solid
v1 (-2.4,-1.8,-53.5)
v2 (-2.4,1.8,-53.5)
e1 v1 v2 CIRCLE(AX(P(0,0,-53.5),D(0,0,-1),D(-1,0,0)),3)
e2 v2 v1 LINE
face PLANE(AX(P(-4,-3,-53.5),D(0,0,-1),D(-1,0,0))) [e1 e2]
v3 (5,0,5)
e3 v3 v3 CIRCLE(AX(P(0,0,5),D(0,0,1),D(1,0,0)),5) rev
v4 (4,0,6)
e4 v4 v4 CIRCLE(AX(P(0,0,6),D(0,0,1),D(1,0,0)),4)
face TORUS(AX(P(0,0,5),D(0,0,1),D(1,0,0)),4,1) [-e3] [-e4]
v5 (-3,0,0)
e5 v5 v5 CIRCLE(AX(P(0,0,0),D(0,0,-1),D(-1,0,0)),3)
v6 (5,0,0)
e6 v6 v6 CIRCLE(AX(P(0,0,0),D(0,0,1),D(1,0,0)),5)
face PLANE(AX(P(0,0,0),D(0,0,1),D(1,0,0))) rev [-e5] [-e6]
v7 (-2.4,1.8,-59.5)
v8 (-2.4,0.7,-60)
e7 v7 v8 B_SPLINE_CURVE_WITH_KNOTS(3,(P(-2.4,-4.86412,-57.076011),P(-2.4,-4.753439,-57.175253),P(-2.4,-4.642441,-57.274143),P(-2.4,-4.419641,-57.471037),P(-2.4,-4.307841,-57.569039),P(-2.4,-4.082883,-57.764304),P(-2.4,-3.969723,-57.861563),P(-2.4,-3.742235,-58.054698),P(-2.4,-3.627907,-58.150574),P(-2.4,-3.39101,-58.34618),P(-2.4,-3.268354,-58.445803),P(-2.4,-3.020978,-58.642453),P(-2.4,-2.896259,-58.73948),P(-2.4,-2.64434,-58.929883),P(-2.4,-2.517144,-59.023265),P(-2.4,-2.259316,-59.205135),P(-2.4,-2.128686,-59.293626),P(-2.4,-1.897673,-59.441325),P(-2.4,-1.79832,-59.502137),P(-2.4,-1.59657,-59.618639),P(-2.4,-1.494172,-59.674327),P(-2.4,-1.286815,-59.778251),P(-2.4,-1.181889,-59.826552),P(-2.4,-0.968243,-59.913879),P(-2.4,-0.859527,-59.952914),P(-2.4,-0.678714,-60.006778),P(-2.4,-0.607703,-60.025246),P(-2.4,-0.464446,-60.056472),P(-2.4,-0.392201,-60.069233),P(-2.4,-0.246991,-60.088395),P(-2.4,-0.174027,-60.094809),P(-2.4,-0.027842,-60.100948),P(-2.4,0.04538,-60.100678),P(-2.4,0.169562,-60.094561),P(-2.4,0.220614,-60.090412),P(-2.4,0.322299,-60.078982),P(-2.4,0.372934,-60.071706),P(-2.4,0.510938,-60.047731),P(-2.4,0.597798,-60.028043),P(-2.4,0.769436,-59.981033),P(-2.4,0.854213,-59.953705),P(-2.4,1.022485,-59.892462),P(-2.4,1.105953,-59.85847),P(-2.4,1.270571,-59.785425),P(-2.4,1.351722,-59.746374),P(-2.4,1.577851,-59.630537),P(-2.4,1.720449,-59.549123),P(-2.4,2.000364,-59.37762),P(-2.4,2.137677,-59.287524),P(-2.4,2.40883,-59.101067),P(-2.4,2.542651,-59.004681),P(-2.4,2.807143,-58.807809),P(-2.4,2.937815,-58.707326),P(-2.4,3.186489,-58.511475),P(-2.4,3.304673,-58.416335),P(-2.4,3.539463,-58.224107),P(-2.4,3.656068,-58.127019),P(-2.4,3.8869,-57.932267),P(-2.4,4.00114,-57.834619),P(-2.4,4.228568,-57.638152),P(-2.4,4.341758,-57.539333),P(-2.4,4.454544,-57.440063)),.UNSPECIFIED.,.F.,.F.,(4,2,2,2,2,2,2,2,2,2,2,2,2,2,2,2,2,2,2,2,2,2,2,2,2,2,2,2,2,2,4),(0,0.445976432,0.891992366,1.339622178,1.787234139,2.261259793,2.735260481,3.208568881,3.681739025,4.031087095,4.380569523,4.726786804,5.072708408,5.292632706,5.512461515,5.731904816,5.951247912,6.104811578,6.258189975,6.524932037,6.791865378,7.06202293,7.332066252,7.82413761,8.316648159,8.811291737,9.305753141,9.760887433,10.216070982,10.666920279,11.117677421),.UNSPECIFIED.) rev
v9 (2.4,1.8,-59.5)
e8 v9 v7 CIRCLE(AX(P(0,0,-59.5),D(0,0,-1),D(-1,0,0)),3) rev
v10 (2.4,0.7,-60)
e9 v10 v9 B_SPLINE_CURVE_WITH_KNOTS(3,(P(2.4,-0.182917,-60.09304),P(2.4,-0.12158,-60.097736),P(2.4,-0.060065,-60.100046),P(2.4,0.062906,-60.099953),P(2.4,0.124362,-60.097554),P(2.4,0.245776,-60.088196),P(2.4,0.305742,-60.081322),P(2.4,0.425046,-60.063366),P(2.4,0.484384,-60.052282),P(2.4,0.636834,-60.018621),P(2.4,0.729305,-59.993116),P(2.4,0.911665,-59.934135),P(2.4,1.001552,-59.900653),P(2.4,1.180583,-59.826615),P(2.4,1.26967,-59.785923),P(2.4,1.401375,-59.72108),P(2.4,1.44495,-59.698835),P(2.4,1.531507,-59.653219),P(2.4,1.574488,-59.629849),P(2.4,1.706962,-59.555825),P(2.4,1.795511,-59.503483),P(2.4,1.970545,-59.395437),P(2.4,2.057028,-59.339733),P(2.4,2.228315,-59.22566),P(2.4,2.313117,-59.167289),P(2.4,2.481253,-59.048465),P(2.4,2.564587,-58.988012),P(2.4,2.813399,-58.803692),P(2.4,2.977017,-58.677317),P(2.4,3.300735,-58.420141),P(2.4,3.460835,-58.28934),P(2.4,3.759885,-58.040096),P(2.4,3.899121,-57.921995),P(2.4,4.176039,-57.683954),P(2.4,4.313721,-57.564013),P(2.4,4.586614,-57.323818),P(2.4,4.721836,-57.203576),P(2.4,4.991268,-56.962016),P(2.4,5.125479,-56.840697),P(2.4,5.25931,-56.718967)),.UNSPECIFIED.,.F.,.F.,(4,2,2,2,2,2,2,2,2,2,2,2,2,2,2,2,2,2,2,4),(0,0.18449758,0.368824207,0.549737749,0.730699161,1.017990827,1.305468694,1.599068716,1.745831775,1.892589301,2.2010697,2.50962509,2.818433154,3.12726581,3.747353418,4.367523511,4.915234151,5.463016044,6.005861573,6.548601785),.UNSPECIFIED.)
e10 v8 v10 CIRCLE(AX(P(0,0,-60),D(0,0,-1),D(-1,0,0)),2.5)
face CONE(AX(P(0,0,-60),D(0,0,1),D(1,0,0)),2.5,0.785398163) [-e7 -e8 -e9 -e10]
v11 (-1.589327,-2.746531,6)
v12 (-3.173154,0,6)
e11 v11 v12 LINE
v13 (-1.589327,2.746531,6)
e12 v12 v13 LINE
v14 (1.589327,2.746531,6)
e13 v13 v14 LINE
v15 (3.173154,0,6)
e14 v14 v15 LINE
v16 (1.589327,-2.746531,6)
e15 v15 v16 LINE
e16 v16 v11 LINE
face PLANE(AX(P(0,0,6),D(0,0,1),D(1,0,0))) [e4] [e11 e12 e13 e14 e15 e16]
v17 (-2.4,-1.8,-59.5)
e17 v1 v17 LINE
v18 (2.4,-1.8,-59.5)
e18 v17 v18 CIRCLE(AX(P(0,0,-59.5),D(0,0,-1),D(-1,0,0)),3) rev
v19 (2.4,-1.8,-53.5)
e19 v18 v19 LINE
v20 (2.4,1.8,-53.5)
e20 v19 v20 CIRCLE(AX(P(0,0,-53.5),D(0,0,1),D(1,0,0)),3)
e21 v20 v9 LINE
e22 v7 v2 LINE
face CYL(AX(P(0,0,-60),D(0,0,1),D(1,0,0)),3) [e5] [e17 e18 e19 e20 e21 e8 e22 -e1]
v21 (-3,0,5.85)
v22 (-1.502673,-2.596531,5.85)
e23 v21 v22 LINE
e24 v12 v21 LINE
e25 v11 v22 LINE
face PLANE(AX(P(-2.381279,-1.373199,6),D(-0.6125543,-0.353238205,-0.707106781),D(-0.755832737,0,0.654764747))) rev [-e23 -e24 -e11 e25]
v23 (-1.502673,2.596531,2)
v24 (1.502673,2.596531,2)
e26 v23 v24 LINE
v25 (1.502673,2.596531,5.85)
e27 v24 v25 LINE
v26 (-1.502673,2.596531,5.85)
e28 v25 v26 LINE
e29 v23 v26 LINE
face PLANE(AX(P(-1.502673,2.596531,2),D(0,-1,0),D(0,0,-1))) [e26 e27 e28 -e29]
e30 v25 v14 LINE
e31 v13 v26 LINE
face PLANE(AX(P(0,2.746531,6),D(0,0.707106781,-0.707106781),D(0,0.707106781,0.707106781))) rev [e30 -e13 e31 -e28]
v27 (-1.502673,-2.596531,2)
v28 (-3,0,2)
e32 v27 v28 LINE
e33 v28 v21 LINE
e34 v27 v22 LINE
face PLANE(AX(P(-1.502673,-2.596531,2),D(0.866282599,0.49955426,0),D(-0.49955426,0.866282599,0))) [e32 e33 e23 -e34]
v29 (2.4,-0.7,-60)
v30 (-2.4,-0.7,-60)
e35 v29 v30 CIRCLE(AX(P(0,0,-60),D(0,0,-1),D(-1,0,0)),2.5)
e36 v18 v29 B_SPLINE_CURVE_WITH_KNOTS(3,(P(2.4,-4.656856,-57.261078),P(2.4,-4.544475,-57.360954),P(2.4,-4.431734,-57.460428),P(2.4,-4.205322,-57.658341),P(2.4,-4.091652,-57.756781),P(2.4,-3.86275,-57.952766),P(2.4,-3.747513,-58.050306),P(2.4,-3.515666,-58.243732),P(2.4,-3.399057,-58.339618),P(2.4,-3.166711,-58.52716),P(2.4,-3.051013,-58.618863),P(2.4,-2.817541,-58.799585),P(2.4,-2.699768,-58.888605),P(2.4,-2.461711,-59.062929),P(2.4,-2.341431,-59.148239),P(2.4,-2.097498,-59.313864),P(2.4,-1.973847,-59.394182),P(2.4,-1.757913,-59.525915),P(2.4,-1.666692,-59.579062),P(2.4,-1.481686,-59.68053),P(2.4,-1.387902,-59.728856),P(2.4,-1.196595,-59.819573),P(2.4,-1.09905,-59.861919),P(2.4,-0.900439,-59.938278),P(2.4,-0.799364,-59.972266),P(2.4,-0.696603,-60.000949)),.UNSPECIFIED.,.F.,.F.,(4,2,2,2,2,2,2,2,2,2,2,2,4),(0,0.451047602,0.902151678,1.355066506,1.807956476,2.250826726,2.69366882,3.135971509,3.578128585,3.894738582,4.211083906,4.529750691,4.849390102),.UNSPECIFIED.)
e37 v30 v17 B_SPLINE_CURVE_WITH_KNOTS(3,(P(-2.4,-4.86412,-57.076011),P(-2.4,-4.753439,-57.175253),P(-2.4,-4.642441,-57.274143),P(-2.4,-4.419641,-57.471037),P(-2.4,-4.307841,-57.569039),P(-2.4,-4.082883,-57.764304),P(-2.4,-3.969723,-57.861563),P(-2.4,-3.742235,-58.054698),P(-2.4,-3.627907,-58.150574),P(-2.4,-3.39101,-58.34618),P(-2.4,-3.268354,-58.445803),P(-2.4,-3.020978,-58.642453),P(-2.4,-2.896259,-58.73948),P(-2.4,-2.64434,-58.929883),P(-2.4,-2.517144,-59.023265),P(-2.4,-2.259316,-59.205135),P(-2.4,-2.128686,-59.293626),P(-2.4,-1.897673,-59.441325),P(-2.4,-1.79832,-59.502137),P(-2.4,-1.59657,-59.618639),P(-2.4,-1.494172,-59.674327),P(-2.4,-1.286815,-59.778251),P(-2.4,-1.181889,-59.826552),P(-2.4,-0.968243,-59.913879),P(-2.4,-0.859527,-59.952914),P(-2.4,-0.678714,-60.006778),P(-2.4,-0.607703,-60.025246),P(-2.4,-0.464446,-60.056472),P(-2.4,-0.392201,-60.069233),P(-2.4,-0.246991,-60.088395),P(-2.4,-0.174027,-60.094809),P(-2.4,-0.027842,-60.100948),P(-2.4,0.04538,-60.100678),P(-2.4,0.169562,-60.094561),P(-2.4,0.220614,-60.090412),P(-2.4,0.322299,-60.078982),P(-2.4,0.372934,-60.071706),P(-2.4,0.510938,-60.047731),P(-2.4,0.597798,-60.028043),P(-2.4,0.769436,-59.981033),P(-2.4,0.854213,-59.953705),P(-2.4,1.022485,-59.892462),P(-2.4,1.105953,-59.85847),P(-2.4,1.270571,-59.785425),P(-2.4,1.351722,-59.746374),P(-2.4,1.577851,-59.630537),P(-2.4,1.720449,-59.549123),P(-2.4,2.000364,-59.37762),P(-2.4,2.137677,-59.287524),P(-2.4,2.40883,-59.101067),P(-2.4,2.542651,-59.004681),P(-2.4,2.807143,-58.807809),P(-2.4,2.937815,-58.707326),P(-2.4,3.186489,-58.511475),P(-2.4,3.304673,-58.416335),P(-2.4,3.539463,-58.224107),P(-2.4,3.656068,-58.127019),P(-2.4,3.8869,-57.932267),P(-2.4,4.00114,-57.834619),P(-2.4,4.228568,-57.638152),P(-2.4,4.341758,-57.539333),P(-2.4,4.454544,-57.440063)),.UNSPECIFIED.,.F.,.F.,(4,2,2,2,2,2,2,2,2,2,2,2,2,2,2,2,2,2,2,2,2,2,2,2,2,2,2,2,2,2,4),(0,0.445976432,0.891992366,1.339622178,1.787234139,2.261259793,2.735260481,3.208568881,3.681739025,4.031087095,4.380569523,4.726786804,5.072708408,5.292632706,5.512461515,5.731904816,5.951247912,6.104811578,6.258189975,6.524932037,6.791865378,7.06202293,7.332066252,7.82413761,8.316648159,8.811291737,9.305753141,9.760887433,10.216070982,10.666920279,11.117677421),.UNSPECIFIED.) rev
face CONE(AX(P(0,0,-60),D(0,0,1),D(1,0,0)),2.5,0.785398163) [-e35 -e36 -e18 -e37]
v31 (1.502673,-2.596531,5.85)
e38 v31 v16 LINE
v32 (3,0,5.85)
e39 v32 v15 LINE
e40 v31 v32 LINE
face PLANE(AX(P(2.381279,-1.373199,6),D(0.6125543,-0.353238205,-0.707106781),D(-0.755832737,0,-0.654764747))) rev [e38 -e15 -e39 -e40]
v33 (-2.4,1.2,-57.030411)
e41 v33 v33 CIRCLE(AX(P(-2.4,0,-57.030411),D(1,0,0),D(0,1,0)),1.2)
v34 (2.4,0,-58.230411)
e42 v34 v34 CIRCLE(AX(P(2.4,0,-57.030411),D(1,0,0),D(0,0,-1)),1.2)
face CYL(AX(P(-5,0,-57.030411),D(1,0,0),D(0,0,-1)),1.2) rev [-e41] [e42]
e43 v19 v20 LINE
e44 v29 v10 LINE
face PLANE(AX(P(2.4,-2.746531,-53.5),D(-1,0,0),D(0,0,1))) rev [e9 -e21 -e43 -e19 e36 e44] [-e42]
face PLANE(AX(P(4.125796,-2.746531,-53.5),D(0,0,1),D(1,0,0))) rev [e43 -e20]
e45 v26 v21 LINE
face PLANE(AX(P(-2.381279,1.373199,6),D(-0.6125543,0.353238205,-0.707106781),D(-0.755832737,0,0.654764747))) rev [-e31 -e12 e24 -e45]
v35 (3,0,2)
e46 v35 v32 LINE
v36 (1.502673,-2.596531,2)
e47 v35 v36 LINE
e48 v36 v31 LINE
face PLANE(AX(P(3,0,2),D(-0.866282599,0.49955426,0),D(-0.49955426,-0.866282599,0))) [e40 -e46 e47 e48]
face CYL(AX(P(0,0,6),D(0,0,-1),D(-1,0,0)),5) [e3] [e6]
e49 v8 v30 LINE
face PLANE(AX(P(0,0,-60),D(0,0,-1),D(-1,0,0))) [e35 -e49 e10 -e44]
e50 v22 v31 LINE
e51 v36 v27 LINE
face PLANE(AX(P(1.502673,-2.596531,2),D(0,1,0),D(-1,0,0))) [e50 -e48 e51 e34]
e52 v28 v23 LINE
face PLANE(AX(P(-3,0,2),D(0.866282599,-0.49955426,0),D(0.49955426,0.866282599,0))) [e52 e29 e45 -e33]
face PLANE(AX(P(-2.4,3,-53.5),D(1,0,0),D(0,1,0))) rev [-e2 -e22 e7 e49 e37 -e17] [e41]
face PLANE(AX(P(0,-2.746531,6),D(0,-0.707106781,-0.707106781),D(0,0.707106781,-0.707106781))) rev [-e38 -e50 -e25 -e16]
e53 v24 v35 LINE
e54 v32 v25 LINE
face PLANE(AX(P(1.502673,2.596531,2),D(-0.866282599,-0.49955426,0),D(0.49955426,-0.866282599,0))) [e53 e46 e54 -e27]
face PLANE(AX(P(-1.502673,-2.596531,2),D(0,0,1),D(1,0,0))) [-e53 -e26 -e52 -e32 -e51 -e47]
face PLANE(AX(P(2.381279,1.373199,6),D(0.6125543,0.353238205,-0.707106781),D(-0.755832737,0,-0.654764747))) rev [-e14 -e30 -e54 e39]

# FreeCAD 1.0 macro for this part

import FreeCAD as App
import Part
import Sketcher
from FreeCAD import Vector


def edges_at(feature, points):
    """Names of the edges that pass closest to the given points."""
    edges = feature.Shape.Edges
    near = lambda p: min(range(len(edges)), key=lambda i: edges[i].distToShape(Part.Vertex(*p))[0])
    return sorted({f"Edge{near(p) + 1}" for p in points})

doc = App.newDocument("Part")
body = doc.addObject("PartDesign::Body", "Body")

sketch1 = body.newObject("Sketcher::SketchObject", "Sketch")
sketch1.AttachmentSupport = (doc.getObject("XY_Plane"), [""])
sketch1.MapMode = "FlatFace"
sketch1.addGeometry(Part.Circle(Vector(0, 0, 0), Vector(0, 0, 1), 5), False)
sketch1.addConstraint([
    Sketcher.Constraint("Coincident", 0, 3, -1, 1),
    Sketcher.Constraint("Diameter", 0, 10.0),
])
pad1 = body.newObject("PartDesign::Pad", "Pad")
pad1.Profile = sketch1
pad1.Length = 6

sketch2 = body.newObject("Sketcher::SketchObject", "Sketch001")
sketch2.AttachmentSupport = (doc.getObject("XY_Plane"), [""])
sketch2.MapMode = "FlatFace"
sketch2.AttachmentOffset = App.Placement(Vector(0, 0, 6), App.Rotation())
sketch2.addGeometry([
    Part.LineSegment(Vector(-1.5, 2.6, 0), Vector(-3, 0, 0)),
    Part.LineSegment(Vector(-3, 0, 0), Vector(-1.5, -2.6, 0)),
    Part.LineSegment(Vector(-1.5, -2.6, 0), Vector(1.5, -2.6, 0)),
    Part.LineSegment(Vector(1.5, -2.6, 0), Vector(3, 0, 0)),
    Part.LineSegment(Vector(3, 0, 0), Vector(1.5, 2.6, 0)),
    Part.LineSegment(Vector(1.5, 2.6, 0), Vector(-1.5, 2.6, 0)),
], False)
sketch2.addConstraint([
    Sketcher.Constraint("Coincident", 0, 2, 1, 1),
    Sketcher.Constraint("Coincident", 1, 2, 2, 1),
    Sketcher.Constraint("Coincident", 2, 2, 3, 1),
    Sketcher.Constraint("Coincident", 3, 2, 4, 1),
    Sketcher.Constraint("Coincident", 4, 2, 5, 1),
    Sketcher.Constraint("Coincident", 5, 2, 0, 1),
    Sketcher.Constraint("Horizontal", 2),
    Sketcher.Constraint("Horizontal", 5),
    Sketcher.Constraint("Symmetric", 0, 2, 3, 2, -1, 1),
    Sketcher.Constraint("Symmetric", 1, 2, 4, 2, -1, 1),
    Sketcher.Constraint("PointOnObject", 0, 2, -1),
    Sketcher.Constraint("Parallel", 0, 3),
    Sketcher.Constraint("Vertical", 2, 2, 4, 2),
    Sketcher.Constraint("DistanceX", 0, 2, -1, 1, 3.0),
    Sketcher.Constraint("DistanceX", 2, 1, 2, 2, 3.005346),
    Sketcher.Constraint("DistanceY", 1, 2, -1, 1, 2.596531),
])
pocket1 = body.newObject("PartDesign::Pocket", "Pocket")
pocket1.Profile = sketch2
pocket1.Length = 4
doc.recompute()

fillet = body.newObject("PartDesign::Fillet", "Fillet")
fillet.Base = (pocket1, edges_at(pocket1, [(-5, 0, 6)]))
fillet.Radius = 1
doc.recompute()

chamfer = body.newObject("PartDesign::Chamfer", "Chamfer")
chamfer.Base = (fillet, edges_at(fillet, [
    (-2.251, -1.298, 6),
    (0, -2.597, 6),
    (2.251, -1.298, 6),
    (2.251, 1.298, 6),
    (0, 2.597, 6),
    (-2.251, 1.298, 6),
]))
chamfer.Size = 0.15

sketch3 = body.newObject("Sketcher::SketchObject", "Sketch002")
sketch3.AttachmentSupport = (doc.getObject("XY_Plane"), [""])
sketch3.MapMode = "FlatFace"
sketch3.addGeometry(Part.Circle(Vector(0, 0, 0), Vector(0, 0, 1), 3), False)
sketch3.addConstraint([
    Sketcher.Constraint("Coincident", 0, 3, -1, 1),
    Sketcher.Constraint("Diameter", 0, 6.0),
])
pad2 = body.newObject("PartDesign::Pad", "Pad001")
pad2.Profile = sketch3
pad2.Length = 60
pad2.Reversed = True
doc.recompute()

chamfer2 = body.newObject("PartDesign::Chamfer", "Chamfer001")
chamfer2.Base = (pad2, edges_at(pad2, [(-2.4, 1.8, -60)]))
chamfer2.Size = 0.5

sketch4 = body.newObject("Sketcher::SketchObject", "Sketch003")
sketch4.AttachmentSupport = (doc.getObject("XY_Plane"), [""])
sketch4.MapMode = "FlatFace"
sketch4.AttachmentOffset = App.Placement(Vector(0, 0, -60), App.Rotation())
sketch4.addGeometry([
    Part.LineSegment(Vector(4.1, 3, 0), Vector(4.1, -2.7, 0)),
    Part.LineSegment(Vector(4.1, -2.7, 0), Vector(2.4, -2.7, 0)),
    Part.LineSegment(Vector(2.4, -2.7, 0), Vector(2.4, 3, 0)),
    Part.LineSegment(Vector(2.4, 3, 0), Vector(4.1, 3, 0)),
], False)
sketch4.addConstraint([
    Sketcher.Constraint("Coincident", 0, 2, 1, 1),
    Sketcher.Constraint("Coincident", 1, 2, 2, 1),
    Sketcher.Constraint("Coincident", 2, 2, 3, 1),
    Sketcher.Constraint("Coincident", 3, 2, 0, 1),
    Sketcher.Constraint("Vertical", 0),
    Sketcher.Constraint("Horizontal", 1),
    Sketcher.Constraint("Vertical", 2),
    Sketcher.Constraint("Horizontal", 3),
    Sketcher.Constraint("DistanceY", -1, 1, 2, 2, 3.0),
    Sketcher.Constraint("DistanceX", -1, 1, 1, 2, 2.4),
    Sketcher.Constraint("DistanceY", 0, 2, 0, 1, 5.746531),
    Sketcher.Constraint("DistanceX", 1, 2, 1, 1, 1.725796),
])
pocket2 = body.newObject("PartDesign::Pocket", "Pocket001")
pocket2.Profile = sketch4
pocket2.Length = 6.5
pocket2.Reversed = True

sketch5 = body.newObject("Sketcher::SketchObject", "Sketch004")
sketch5.AttachmentSupport = (doc.getObject("XY_Plane"), [""])
sketch5.MapMode = "FlatFace"
sketch5.AttachmentOffset = App.Placement(Vector(0, 0, -60), App.Rotation())
sketch5.addGeometry([
    Part.LineSegment(Vector(-2.4, 3, 0), Vector(-2.4, -3, 0)),
    Part.LineSegment(Vector(-2.4, -3, 0), Vector(-4, -3, 0)),
    Part.LineSegment(Vector(-4, -3, 0), Vector(-4, 3, 0)),
    Part.LineSegment(Vector(-4, 3, 0), Vector(-2.4, 3, 0)),
], False)
sketch5.addConstraint([
    Sketcher.Constraint("Coincident", 0, 2, 1, 1),
    Sketcher.Constraint("Coincident", 1, 2, 2, 1),
    Sketcher.Constraint("Coincident", 2, 2, 3, 1),
    Sketcher.Constraint("Coincident", 3, 2, 0, 1),
    Sketcher.Constraint("Vertical", 0),
    Sketcher.Constraint("Horizontal", 1),
    Sketcher.Constraint("Vertical", 2),
    Sketcher.Constraint("Horizontal", 3),
    Sketcher.Constraint("DistanceY", 0, 2, 0, 1, 6.0),
    Sketcher.Constraint("DistanceX", 1, 2, 1, 1, 1.6),
    Sketcher.Constraint("DistanceY", 0, 2, -1, 1, 3.0),
    Sketcher.Constraint("DistanceX", 1, 2, -1, 1, 4.0),
])
pocket3 = body.newObject("PartDesign::Pocket", "Pocket002")
pocket3.Profile = sketch5
pocket3.Length = 6.5
pocket3.Reversed = True

sketch6 = body.newObject("Sketcher::SketchObject", "Sketch005")
sketch6.AttachmentSupport = (doc.getObject("YZ_Plane"), [""])
sketch6.MapMode = "FlatFace"
sketch6.AttachmentOffset = App.Placement(Vector(0, 0, 2.4), App.Rotation())
sketch6.addGeometry(Part.Circle(Vector(0, -57, 0), Vector(0, 0, 1), 1.2), False)
sketch6.addConstraint([
    Sketcher.Constraint("PointOnObject", 0, 3, -2),
    Sketcher.Constraint("Diameter", 0, 2.4),
    Sketcher.Constraint("DistanceY", 0, 3, -1, 1, 57.030411),
])
pocket4 = body.newObject("PartDesign::Pocket", "Pocket003")
pocket4.Profile = sketch6
pocket4.Type = "ThroughAll"

doc.recompute()
